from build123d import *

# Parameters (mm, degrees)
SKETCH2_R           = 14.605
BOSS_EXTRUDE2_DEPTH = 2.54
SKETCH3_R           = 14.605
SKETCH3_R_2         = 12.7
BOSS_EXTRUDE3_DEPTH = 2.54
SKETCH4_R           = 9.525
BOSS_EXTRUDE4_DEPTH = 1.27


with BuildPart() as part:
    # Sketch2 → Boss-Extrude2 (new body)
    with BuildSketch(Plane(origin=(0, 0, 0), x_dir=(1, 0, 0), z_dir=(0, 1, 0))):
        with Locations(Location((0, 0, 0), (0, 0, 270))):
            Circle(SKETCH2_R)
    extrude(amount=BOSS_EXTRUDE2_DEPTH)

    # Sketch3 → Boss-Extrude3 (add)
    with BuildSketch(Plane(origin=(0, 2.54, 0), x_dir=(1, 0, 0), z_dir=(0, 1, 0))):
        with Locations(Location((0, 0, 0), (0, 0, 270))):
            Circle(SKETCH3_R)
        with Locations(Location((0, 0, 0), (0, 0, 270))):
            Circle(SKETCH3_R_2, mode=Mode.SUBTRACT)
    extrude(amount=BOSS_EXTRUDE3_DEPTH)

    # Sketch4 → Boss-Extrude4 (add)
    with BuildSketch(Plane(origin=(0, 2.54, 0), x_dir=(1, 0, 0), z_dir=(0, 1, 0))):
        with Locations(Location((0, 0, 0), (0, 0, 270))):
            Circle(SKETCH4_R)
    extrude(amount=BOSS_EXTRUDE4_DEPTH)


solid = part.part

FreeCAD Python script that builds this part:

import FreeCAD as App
import Part
import Sketcher
Q = App.Units.Quantity

doc = App.newDocument("Part")
body = doc.addObject("PartDesign::Body", "Body")

# Sketch on XZ plane
sketch1 = body.newObject("Sketcher::SketchObject", "Sketch")
sketch1.AttachmentSupport = (doc.getObject("XZ_Plane"), [""])
sketch1.MapMode = "FlatFace"
sketch1.addGeometry(Part.Circle(App.Vector(0, 0, 0), App.Vector(0, 0, 1), 15), False)
sketch1.addConstraint(Sketcher.Constraint("Coincident", 0, 3, -1, 1))
sketch1.addConstraint(Sketcher.Constraint("Diameter", 0, Q("1.15 in")))
pad1 = body.newObject("PartDesign::Pad", "Pad")
pad1.Profile = sketch1
pad1.Length = Q("0.1 in")
pad1.Reversed = True

# Sketch on XZ plane
sketch2 = body.newObject("Sketcher::SketchObject", "Sketch001")
sketch2.AttachmentSupport = (doc.getObject("XZ_Plane"), [""])
sketch2.MapMode = "FlatFace"
sketch2.AttachmentOffset = App.Placement(App.Vector(0, 0, -0.1 * 25.4), App.Rotation())
sketch2.addGeometry(Part.Circle(App.Vector(0, 0, 0), App.Vector(0, 0, 1), 15), False)
sketch2.addGeometry(Part.Circle(App.Vector(0, 0, 0), App.Vector(0, 0, 1), 13), False)
sketch2.addConstraint(Sketcher.Constraint("Coincident", 0, 3, -1, 1))
sketch2.addConstraint(Sketcher.Constraint("Coincident", 1, 3, -1, 1))
sketch2.addConstraint(Sketcher.Constraint("Diameter", 1, Q("1 in")))
sketch2.addConstraint(Sketcher.Constraint("Diameter", 0, Q("1.15 in")))
pad2 = body.newObject("PartDesign::Pad", "Pad001")
pad2.Profile = sketch2
pad2.Length = Q("0.1 in")
pad2.Reversed = True

# Sketch on XZ plane
sketch3 = body.newObject("Sketcher::SketchObject", "Sketch002")
sketch3.AttachmentSupport = (doc.getObject("XZ_Plane"), [""])
sketch3.MapMode = "FlatFace"
sketch3.AttachmentOffset = App.Placement(App.Vector(0, 0, -0.1 * 25.4), App.Rotation())
sketch3.addGeometry(Part.Circle(App.Vector(0, 0, 0), App.Vector(0, 0, 1), 10), False)
sketch3.addConstraint(Sketcher.Constraint("Coincident", 0, 3, -1, 1))
sketch3.addConstraint(Sketcher.Constraint("Diameter", 0, Q("0.75 in")))
pad3 = body.newObject("PartDesign::Pad", "Pad002")
pad3.Profile = sketch3
pad3.Length = Q("0.05 in")
pad3.Reversed = True

doc.recompute()
